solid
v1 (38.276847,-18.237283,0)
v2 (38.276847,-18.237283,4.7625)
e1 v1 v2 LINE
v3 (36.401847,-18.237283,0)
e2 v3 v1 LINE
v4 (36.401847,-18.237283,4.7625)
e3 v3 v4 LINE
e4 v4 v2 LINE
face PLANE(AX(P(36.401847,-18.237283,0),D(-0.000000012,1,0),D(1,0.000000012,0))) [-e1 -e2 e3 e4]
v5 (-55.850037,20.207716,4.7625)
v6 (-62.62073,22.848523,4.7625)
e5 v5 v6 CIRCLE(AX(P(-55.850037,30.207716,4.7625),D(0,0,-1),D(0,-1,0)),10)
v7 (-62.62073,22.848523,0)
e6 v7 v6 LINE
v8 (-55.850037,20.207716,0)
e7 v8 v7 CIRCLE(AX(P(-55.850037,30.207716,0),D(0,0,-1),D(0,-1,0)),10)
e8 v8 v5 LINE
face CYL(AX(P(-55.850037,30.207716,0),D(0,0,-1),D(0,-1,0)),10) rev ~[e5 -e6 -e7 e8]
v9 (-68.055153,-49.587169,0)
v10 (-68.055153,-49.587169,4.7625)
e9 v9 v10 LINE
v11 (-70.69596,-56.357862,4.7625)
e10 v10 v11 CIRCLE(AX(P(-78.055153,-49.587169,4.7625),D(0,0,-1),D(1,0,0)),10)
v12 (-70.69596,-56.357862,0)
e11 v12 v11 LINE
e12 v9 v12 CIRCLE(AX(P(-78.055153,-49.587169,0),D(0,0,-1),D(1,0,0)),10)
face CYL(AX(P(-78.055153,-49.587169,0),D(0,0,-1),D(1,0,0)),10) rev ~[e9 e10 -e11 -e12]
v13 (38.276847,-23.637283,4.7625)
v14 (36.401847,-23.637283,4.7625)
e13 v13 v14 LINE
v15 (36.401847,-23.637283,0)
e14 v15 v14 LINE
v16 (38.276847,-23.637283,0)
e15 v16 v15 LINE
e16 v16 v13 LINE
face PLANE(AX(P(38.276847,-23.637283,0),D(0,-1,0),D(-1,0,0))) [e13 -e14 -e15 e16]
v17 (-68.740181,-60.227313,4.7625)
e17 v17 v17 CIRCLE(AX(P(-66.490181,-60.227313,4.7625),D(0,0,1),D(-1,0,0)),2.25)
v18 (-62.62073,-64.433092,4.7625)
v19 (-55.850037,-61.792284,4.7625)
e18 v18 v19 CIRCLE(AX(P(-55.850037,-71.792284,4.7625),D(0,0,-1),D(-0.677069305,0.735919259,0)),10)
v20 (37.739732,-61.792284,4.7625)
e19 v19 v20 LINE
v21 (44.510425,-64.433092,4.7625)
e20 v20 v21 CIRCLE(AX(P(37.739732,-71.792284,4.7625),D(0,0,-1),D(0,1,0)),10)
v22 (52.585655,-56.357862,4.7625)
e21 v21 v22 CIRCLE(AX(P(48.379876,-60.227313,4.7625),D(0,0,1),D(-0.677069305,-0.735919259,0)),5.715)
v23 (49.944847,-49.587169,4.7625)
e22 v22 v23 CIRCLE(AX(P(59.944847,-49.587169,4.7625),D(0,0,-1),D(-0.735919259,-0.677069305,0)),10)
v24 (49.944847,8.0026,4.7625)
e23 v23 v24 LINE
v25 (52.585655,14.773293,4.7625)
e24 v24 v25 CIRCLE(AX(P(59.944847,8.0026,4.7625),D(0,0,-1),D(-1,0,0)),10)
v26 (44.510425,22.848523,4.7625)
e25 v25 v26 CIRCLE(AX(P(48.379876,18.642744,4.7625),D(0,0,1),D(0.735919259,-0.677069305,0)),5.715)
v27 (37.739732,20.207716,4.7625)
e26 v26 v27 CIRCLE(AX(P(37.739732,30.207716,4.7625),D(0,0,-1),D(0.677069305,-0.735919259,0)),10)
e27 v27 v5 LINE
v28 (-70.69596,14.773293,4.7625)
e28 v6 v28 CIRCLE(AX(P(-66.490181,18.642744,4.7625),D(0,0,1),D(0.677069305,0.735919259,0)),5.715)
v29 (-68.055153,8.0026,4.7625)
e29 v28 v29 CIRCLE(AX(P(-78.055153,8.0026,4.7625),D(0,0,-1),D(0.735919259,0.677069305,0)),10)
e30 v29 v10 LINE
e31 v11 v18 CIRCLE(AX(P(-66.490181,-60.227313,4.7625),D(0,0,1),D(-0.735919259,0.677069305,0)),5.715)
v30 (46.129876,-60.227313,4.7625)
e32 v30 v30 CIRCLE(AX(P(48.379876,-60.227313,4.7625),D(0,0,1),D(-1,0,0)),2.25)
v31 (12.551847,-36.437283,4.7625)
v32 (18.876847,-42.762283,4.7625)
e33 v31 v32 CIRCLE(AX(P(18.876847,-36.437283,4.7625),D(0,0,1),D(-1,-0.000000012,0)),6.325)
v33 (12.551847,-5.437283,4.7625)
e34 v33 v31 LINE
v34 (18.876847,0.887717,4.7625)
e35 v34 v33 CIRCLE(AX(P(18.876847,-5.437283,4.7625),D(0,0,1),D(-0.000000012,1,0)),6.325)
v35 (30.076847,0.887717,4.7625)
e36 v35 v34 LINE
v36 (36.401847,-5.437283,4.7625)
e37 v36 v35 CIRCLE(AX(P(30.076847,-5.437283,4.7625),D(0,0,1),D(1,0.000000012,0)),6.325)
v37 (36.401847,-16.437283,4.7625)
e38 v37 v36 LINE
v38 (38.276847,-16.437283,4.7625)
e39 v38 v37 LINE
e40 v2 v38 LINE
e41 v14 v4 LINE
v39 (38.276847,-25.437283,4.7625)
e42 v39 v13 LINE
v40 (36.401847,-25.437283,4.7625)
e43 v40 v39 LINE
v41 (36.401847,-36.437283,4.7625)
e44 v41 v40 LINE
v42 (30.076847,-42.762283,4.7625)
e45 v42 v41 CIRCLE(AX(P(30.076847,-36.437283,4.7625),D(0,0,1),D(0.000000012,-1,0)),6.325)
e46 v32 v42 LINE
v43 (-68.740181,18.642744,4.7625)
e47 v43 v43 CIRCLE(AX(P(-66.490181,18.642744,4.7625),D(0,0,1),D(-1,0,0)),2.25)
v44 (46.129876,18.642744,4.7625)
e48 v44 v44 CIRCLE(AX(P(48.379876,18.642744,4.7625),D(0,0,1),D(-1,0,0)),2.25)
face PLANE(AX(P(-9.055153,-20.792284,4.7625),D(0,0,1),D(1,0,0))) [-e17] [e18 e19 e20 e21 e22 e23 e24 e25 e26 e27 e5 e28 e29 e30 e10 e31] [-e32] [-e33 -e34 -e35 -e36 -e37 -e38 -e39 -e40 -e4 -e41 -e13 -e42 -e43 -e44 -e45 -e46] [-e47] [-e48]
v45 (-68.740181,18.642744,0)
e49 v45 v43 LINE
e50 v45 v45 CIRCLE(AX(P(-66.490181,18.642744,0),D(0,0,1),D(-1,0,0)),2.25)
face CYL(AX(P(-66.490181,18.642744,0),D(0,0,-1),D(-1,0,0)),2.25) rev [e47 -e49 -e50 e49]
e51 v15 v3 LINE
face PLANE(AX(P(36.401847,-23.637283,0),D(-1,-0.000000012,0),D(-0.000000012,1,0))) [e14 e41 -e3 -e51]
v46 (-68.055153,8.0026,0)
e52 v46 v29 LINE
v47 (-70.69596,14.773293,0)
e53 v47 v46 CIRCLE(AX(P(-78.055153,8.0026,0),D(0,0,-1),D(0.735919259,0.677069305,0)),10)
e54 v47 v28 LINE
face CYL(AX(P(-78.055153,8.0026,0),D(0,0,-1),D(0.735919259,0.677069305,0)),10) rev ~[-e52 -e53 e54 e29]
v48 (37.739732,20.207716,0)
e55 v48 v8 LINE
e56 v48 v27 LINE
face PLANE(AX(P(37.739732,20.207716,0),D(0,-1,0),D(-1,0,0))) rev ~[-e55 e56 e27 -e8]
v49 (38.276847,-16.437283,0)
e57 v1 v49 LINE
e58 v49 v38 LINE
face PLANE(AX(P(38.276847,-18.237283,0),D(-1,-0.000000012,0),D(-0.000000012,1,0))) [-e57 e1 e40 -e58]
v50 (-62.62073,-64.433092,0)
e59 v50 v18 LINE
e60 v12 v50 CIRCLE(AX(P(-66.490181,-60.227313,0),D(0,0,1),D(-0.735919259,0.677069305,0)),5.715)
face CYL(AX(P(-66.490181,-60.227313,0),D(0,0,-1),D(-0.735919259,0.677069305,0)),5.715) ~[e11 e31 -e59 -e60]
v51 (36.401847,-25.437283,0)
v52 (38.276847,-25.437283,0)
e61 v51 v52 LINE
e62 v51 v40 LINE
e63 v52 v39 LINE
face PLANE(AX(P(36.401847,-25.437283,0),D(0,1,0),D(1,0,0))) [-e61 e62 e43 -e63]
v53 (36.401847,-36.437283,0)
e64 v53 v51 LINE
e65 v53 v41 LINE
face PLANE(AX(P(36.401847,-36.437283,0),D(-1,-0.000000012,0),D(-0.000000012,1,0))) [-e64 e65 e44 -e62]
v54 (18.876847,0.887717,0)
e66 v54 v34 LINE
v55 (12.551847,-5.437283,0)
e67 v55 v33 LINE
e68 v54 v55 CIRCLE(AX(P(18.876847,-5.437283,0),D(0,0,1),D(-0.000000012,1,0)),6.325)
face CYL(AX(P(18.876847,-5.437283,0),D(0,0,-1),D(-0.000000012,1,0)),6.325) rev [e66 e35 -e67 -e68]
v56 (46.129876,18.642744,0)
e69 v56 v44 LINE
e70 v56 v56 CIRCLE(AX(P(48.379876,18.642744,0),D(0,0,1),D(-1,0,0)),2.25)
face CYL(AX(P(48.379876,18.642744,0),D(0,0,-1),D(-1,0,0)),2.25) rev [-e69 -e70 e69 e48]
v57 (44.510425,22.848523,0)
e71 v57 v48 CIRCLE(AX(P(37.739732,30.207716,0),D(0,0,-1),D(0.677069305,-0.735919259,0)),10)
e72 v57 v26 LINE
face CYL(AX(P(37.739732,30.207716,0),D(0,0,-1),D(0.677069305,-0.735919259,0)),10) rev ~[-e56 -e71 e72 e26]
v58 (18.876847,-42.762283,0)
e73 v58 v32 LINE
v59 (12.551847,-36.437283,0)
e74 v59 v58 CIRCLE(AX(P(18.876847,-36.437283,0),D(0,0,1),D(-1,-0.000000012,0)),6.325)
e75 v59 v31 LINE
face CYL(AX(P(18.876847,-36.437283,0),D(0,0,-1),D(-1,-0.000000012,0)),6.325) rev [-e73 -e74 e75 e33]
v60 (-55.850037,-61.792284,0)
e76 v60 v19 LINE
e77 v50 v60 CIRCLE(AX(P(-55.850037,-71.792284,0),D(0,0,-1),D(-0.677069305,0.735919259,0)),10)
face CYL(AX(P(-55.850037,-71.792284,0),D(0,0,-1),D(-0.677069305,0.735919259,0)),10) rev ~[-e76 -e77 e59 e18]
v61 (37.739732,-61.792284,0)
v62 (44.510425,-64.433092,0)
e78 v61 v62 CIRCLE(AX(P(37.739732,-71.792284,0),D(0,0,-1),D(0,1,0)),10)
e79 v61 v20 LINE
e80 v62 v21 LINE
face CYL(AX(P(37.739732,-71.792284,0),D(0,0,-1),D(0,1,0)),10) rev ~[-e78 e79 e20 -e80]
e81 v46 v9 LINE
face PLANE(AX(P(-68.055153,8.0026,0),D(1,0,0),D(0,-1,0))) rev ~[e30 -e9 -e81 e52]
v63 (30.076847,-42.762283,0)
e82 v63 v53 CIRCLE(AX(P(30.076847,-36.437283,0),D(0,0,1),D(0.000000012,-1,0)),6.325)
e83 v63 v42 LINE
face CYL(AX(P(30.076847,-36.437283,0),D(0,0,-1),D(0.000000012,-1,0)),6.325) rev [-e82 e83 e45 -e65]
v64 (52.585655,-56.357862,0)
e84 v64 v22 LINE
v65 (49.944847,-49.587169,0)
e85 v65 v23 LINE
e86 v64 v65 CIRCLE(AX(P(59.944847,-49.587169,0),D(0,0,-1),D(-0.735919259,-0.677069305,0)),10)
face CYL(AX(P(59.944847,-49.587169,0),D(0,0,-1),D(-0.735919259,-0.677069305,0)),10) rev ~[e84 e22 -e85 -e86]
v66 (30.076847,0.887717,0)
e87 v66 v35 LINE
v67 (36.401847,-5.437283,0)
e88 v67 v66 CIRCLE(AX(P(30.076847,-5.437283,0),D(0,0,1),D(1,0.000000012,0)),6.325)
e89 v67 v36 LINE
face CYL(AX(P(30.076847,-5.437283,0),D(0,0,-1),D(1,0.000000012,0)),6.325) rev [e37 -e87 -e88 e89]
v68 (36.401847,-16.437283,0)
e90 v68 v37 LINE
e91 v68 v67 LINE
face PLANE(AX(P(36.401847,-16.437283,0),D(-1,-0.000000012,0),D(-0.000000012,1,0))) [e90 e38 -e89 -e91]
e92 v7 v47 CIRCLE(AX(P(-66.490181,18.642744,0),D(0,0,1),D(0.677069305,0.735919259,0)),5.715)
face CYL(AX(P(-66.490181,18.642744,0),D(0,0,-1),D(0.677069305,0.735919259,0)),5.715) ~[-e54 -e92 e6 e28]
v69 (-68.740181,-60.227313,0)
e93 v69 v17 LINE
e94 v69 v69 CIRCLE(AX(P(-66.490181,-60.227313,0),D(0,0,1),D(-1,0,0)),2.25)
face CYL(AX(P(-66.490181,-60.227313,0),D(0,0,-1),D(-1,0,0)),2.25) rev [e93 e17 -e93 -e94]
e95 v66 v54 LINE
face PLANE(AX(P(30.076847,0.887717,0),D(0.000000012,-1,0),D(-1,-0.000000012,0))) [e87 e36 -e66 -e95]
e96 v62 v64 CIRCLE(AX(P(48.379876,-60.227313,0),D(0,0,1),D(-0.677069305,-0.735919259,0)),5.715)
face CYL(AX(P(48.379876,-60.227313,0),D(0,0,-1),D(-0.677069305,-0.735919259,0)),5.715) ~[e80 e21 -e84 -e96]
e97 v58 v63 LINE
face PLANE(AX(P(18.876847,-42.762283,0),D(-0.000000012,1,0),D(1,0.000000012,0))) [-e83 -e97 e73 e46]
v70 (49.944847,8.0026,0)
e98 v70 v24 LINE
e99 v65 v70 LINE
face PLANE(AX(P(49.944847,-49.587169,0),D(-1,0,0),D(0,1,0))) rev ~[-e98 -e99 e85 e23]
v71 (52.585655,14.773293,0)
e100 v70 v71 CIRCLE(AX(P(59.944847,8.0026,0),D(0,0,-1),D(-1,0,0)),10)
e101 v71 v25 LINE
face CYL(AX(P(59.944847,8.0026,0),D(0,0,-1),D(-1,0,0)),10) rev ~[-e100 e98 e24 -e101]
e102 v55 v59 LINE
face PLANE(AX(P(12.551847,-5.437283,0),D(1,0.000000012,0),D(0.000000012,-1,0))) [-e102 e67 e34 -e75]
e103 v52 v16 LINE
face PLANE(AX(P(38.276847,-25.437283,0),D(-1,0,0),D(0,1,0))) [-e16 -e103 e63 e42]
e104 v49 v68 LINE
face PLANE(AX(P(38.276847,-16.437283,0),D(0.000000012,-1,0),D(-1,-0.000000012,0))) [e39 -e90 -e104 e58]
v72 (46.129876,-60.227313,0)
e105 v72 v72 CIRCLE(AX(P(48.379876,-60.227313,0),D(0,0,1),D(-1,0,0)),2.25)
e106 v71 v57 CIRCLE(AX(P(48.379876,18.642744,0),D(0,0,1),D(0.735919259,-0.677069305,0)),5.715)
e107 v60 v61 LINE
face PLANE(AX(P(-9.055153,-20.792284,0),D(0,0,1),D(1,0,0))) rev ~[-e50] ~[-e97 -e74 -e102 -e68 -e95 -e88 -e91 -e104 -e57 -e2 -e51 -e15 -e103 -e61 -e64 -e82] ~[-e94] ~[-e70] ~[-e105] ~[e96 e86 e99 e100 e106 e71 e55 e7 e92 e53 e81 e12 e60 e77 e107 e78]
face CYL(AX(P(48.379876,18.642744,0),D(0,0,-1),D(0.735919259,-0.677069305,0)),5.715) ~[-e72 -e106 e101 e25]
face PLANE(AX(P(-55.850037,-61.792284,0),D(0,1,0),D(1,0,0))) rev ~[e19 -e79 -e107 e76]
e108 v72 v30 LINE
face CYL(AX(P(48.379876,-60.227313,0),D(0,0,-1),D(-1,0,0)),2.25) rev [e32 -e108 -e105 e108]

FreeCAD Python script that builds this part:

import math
import FreeCAD as App
import Part
import Sketcher
Q = App.Units.Quantity

doc = App.newDocument("Part")
body = doc.addObject("PartDesign::Body", "Body")

# Sketch on XY plane
sketch1 = body.newObject("Sketcher::SketchObject", "Sketch")
sketch1.AttachmentSupport = (doc.getObject("XY_Plane"), [""])
sketch1.MapMode = "FlatFace"
sketch1.addGeometry([
    Part.LineSegment(App.Vector(-68.1, 8, 0), App.Vector(-68.1, -49.6, 0)),  # 0
    Part.ArcOfCircle(Part.Circle(App.Vector(-78.1, -49.6, 0), App.Vector(0, 0, 1), 10), math.radians(-43), math.radians(0)),  # 1
    Part.ArcOfCircle(Part.Circle(App.Vector(-66.5, -60.2, 0), App.Vector(0, 0, 1), 5.7), math.radians(137), math.radians(313)),  # 2
    Part.ArcOfCircle(Part.Circle(App.Vector(-55.9, -71.8, 0), App.Vector(0, 0, 1), 10), math.radians(90), math.radians(133)),  # 3
    Part.LineSegment(App.Vector(-55.9, -61.8, 0), App.Vector(37.7, -61.8, 0)),  # 4
    Part.ArcOfCircle(Part.Circle(App.Vector(37.7, -71.8, 0), App.Vector(0, 0, 1), 10), math.radians(47), math.radians(90)),  # 5
    Part.ArcOfCircle(Part.Circle(App.Vector(48.4, -60.2, 0), App.Vector(0, 0, 1), 5.7), math.radians(-133), math.radians(43)),  # 6
    Part.ArcOfCircle(Part.Circle(App.Vector(59.9, -49.6, 0), App.Vector(0, 0, 1), 10), math.radians(-180), math.radians(-137)),  # 7
    Part.LineSegment(App.Vector(49.9, -49.6, 0), App.Vector(49.9, 8, 0)),  # 8
    Part.ArcOfCircle(Part.Circle(App.Vector(59.9, 8, 0), App.Vector(0, 0, 1), 10), math.radians(137), math.radians(180)),  # 9
    Part.ArcOfCircle(Part.Circle(App.Vector(48.4, 18.6, 0), App.Vector(0, 0, 1), 5.7), math.radians(-43), math.radians(133)),  # 10
    Part.ArcOfCircle(Part.Circle(App.Vector(37.7, 30.2, 0), App.Vector(0, 0, 1), 10), math.radians(-90), math.radians(-47)),  # 11
    Part.LineSegment(App.Vector(37.7, 20.2, 0), App.Vector(-55.9, 20.2, 0)),  # 12
    Part.ArcOfCircle(Part.Circle(App.Vector(-55.9, 30.2, 0), App.Vector(0, 0, 1), 10), math.radians(-133), math.radians(-90)),  # 13
    Part.ArcOfCircle(Part.Circle(App.Vector(-66.5, 18.6, 0), App.Vector(0, 0, 1), 5.7), math.radians(47), math.radians(223)),  # 14
    Part.ArcOfCircle(Part.Circle(App.Vector(-78.1, 8, 0), App.Vector(0, 0, 1), 10), math.radians(0), math.radians(43)),  # 15
    Part.Circle(App.Vector(-66.5, -60.2, 0), App.Vector(0, 0, 1), 2.2),  # 16
    Part.Circle(App.Vector(48.4, -60.2, 0), App.Vector(0, 0, 1), 2.2),  # 17
    Part.LineSegment(App.Vector(18.9, 0.9, 0), App.Vector(30.1, 0.9, 0)),  # 18
    Part.ArcOfCircle(Part.Circle(App.Vector(30.1, -5.4, 0), App.Vector(0, 0, 1), 6.3), math.radians(0), math.radians(90)),  # 19
    Part.LineSegment(App.Vector(36.4, -5.4, 0), App.Vector(36.4, -16.4, 0)),  # 20
    Part.LineSegment(App.Vector(36.4, -16.4, 0), App.Vector(38.3, -16.4, 0)),  # 21
    Part.LineSegment(App.Vector(38.3, -16.4, 0), App.Vector(38.3, -18.2, 0)),  # 22
    Part.LineSegment(App.Vector(38.3, -18.2, 0), App.Vector(36.4, -18.2, 0)),  # 23
    Part.LineSegment(App.Vector(36.4, -18.2, 0), App.Vector(36.4, -23.6, 0)),  # 24
    Part.LineSegment(App.Vector(36.4, -23.6, 0), App.Vector(38.3, -23.6, 0)),  # 25
    Part.LineSegment(App.Vector(38.3, -23.6, 0), App.Vector(38.3, -25.4, 0)),  # 26
    Part.LineSegment(App.Vector(38.3, -25.4, 0), App.Vector(36.4, -25.4, 0)),  # 27
    Part.LineSegment(App.Vector(36.4, -25.4, 0), App.Vector(36.4, -36.4, 0)),  # 28
    Part.ArcOfCircle(Part.Circle(App.Vector(30.1, -36.4, 0), App.Vector(0, 0, 1), 6.3), math.radians(-90), math.radians(0)),  # 29
    Part.LineSegment(App.Vector(30.1, -42.8, 0), App.Vector(18.9, -42.8, 0)),  # 30
    Part.ArcOfCircle(Part.Circle(App.Vector(18.9, -36.4, 0), App.Vector(0, 0, 1), 6.3), math.radians(-180), math.radians(-90)),  # 31
    Part.LineSegment(App.Vector(12.6, -36.4, 0), App.Vector(12.6, -5.4, 0)),  # 32
    Part.ArcOfCircle(Part.Circle(App.Vector(18.9, -5.4, 0), App.Vector(0, 0, 1), 6.3), math.radians(90), math.radians(180)),  # 33
    Part.Circle(App.Vector(-66.5, 18.6, 0), App.Vector(0, 0, 1), 2.2),  # 34
    Part.Circle(App.Vector(48.4, 18.6, 0), App.Vector(0, 0, 1), 2.2),  # 35
], False)
sketch1.addConstraint([
    Sketcher.Constraint("Tangent", 0, 2, 1, 2),
    Sketcher.Constraint("Tangent", 1, 1, 2, 1),
    Sketcher.Constraint("Tangent", 2, 2, 3, 2),
    Sketcher.Constraint("Tangent", 3, 1, 4, 1),
    Sketcher.Constraint("Tangent", 4, 2, 5, 2),
    Sketcher.Constraint("Tangent", 5, 1, 6, 1),
    Sketcher.Constraint("Tangent", 6, 2, 7, 2),
    Sketcher.Constraint("Tangent", 7, 1, 8, 1),
    Sketcher.Constraint("Tangent", 8, 2, 9, 2),
    Sketcher.Constraint("Tangent", 9, 1, 10, 1),
    Sketcher.Constraint("Tangent", 10, 2, 11, 2),
    Sketcher.Constraint("Tangent", 11, 1, 12, 1),
    Sketcher.Constraint("Tangent", 12, 2, 13, 2),
    Sketcher.Constraint("Tangent", 13, 1, 14, 1),
    Sketcher.Constraint("Tangent", 14, 2, 15, 2),
    Sketcher.Constraint("Tangent", 15, 1, 0, 1),
    Sketcher.Constraint("Tangent", 18, 2, 19, 2),
    Sketcher.Constraint("Tangent", 19, 1, 20, 1),
    Sketcher.Constraint("Coincident", 20, 2, 21, 1),
    Sketcher.Constraint("Coincident", 21, 2, 22, 1),
    Sketcher.Constraint("Coincident", 22, 2, 23, 1),
    Sketcher.Constraint("Coincident", 23, 2, 24, 1),
    Sketcher.Constraint("Coincident", 24, 2, 25, 1),
    Sketcher.Constraint("Coincident", 25, 2, 26, 1),
    Sketcher.Constraint("Coincident", 26, 2, 27, 1),
    Sketcher.Constraint("Coincident", 27, 2, 28, 1),
    Sketcher.Constraint("Tangent", 28, 2, 29, 2),
    Sketcher.Constraint("Tangent", 29, 1, 30, 1),
    Sketcher.Constraint("Tangent", 30, 2, 31, 2),
    Sketcher.Constraint("Tangent", 31, 1, 32, 1),
    Sketcher.Constraint("Tangent", 32, 2, 33, 2),
    Sketcher.Constraint("Tangent", 33, 1, 18, 1),
    Sketcher.Constraint("Vertical", 0),
    Sketcher.Constraint("Horizontal", 4),
    Sketcher.Constraint("Vertical", 8),
    Sketcher.Constraint("Horizontal", 12),
    Sketcher.Constraint("Horizontal", 18),
    Sketcher.Constraint("Vertical", 20),
    Sketcher.Constraint("Horizontal", 21),
    Sketcher.Constraint("Vertical", 22),
    Sketcher.Constraint("Horizontal", 23),
    Sketcher.Constraint("Vertical", 24),
    Sketcher.Constraint("Horizontal", 25),
    Sketcher.Constraint("Vertical", 26),
    Sketcher.Constraint("Horizontal", 27),
    Sketcher.Constraint("Vertical", 28),
    Sketcher.Constraint("Horizontal", 30),
    Sketcher.Constraint("Vertical", 32),
    Sketcher.Constraint("Coincident", 16, 3, 2, 3),
    Sketcher.Constraint("Coincident", 17, 3, 6, 3),
    Sketcher.Constraint("Coincident", 34, 3, 14, 3),
    Sketcher.Constraint("Coincident", 35, 3, 10, 3),
    Sketcher.Constraint("Equal", 1, 3),
    Sketcher.Constraint("Equal", 3, 5),
    Sketcher.Constraint("Equal", 2, 6),
    Sketcher.Constraint("Equal", 5, 7),
    Sketcher.Constraint("Equal", 7, 9),
    Sketcher.Constraint("Equal", 6, 10),
    Sketcher.Constraint("Equal", 9, 11),
    Sketcher.Constraint("Equal", 11, 13),
    Sketcher.Constraint("Equal", 10, 14),
    Sketcher.Constraint("Equal", 13, 15),
    Sketcher.Constraint("Equal", 16, 17),
    Sketcher.Constraint("Equal", 19, 29),
    Sketcher.Constraint("Equal", 29, 31),
    Sketcher.Constraint("Equal", 31, 33),
    Sketcher.Constraint("Equal", 17, 34),
    Sketcher.Constraint("Equal", 34, 35),
    Sketcher.Constraint("Horizontal", 2, 3, 6, 3),
    Sketcher.Constraint("Horizontal", 1, 3, 7, 3),
    Sketcher.Constraint("Horizontal", 10, 3, 14, 3),
    Sketcher.Constraint("Horizontal", 9, 3, 15, 3),
    Sketcher.Constraint("Vertical", 6, 3, 10, 3),
    Sketcher.Constraint("Vertical", 5, 3, 11, 3),
    Sketcher.Constraint("Vertical", 19, 3, 29, 3),
    Sketcher.Constraint("Vertical", 20, 2, 23, 2),
    Sketcher.Constraint("Vertical", 22, 2, 25, 2),
    Sketcher.Constraint("Equal", 22, 26),
    Sketcher.Constraint("Equal", 20, 28),
    Sketcher.Constraint("Radius", 1, Q("10 mm")),
    Sketcher.Constraint("Diameter", 16, Q("4.5 mm")),
    Sketcher.Constraint("DistanceY", 20, 2, 20, 1, Q("11 mm")),
    Sketcher.Constraint("DistanceY", 32, 1, 32, 2, Q("31 mm")),
    Sketcher.Constraint("DistanceX", 18, 1, 18, 2, Q("11.2 mm")),
    Sketcher.Constraint("DistanceY", 22, 2, 22, 1, Q("1.8 mm")),
    Sketcher.Constraint("Radius", 2, Q("5.715 mm")),
    Sketcher.Constraint("Radius", 19, Q("6.325 mm")),
    Sketcher.Constraint("DistanceX", 1, 3, 7, 3, Q("138 mm")),
    Sketcher.Constraint("DistanceY", 5, 3, 11, 3, Q("102 mm")),
    Sketcher.Constraint("DistanceX", 19, 3, 21, 2, Q("8.2 mm")),
    Sketcher.Constraint("DistanceY", 18, 2, 11, 1, Q("19.319999 mm")),
    Sketcher.Constraint("DistanceX", 19, 3, 9, 3, Q("29.868001 mm")),
    Sketcher.Constraint("DistanceX", 4, 1, 4, 2, Q("93.589769 mm")),
    Sketcher.Constraint("DistanceY", 0, 2, 0, 1, Q("57.589769 mm")),
    Sketcher.Constraint("DistanceY", -1, 1, 9, 3, Q("8.0026 mm")),
    Sketcher.Constraint("DistanceX", 2, 3, -1, 1, Q("66.490181 mm")),
])
pad1 = body.newObject("PartDesign::Pad", "Pad")
pad1.Profile = sketch1
pad1.Length = 4.7625

doc.recompute()
